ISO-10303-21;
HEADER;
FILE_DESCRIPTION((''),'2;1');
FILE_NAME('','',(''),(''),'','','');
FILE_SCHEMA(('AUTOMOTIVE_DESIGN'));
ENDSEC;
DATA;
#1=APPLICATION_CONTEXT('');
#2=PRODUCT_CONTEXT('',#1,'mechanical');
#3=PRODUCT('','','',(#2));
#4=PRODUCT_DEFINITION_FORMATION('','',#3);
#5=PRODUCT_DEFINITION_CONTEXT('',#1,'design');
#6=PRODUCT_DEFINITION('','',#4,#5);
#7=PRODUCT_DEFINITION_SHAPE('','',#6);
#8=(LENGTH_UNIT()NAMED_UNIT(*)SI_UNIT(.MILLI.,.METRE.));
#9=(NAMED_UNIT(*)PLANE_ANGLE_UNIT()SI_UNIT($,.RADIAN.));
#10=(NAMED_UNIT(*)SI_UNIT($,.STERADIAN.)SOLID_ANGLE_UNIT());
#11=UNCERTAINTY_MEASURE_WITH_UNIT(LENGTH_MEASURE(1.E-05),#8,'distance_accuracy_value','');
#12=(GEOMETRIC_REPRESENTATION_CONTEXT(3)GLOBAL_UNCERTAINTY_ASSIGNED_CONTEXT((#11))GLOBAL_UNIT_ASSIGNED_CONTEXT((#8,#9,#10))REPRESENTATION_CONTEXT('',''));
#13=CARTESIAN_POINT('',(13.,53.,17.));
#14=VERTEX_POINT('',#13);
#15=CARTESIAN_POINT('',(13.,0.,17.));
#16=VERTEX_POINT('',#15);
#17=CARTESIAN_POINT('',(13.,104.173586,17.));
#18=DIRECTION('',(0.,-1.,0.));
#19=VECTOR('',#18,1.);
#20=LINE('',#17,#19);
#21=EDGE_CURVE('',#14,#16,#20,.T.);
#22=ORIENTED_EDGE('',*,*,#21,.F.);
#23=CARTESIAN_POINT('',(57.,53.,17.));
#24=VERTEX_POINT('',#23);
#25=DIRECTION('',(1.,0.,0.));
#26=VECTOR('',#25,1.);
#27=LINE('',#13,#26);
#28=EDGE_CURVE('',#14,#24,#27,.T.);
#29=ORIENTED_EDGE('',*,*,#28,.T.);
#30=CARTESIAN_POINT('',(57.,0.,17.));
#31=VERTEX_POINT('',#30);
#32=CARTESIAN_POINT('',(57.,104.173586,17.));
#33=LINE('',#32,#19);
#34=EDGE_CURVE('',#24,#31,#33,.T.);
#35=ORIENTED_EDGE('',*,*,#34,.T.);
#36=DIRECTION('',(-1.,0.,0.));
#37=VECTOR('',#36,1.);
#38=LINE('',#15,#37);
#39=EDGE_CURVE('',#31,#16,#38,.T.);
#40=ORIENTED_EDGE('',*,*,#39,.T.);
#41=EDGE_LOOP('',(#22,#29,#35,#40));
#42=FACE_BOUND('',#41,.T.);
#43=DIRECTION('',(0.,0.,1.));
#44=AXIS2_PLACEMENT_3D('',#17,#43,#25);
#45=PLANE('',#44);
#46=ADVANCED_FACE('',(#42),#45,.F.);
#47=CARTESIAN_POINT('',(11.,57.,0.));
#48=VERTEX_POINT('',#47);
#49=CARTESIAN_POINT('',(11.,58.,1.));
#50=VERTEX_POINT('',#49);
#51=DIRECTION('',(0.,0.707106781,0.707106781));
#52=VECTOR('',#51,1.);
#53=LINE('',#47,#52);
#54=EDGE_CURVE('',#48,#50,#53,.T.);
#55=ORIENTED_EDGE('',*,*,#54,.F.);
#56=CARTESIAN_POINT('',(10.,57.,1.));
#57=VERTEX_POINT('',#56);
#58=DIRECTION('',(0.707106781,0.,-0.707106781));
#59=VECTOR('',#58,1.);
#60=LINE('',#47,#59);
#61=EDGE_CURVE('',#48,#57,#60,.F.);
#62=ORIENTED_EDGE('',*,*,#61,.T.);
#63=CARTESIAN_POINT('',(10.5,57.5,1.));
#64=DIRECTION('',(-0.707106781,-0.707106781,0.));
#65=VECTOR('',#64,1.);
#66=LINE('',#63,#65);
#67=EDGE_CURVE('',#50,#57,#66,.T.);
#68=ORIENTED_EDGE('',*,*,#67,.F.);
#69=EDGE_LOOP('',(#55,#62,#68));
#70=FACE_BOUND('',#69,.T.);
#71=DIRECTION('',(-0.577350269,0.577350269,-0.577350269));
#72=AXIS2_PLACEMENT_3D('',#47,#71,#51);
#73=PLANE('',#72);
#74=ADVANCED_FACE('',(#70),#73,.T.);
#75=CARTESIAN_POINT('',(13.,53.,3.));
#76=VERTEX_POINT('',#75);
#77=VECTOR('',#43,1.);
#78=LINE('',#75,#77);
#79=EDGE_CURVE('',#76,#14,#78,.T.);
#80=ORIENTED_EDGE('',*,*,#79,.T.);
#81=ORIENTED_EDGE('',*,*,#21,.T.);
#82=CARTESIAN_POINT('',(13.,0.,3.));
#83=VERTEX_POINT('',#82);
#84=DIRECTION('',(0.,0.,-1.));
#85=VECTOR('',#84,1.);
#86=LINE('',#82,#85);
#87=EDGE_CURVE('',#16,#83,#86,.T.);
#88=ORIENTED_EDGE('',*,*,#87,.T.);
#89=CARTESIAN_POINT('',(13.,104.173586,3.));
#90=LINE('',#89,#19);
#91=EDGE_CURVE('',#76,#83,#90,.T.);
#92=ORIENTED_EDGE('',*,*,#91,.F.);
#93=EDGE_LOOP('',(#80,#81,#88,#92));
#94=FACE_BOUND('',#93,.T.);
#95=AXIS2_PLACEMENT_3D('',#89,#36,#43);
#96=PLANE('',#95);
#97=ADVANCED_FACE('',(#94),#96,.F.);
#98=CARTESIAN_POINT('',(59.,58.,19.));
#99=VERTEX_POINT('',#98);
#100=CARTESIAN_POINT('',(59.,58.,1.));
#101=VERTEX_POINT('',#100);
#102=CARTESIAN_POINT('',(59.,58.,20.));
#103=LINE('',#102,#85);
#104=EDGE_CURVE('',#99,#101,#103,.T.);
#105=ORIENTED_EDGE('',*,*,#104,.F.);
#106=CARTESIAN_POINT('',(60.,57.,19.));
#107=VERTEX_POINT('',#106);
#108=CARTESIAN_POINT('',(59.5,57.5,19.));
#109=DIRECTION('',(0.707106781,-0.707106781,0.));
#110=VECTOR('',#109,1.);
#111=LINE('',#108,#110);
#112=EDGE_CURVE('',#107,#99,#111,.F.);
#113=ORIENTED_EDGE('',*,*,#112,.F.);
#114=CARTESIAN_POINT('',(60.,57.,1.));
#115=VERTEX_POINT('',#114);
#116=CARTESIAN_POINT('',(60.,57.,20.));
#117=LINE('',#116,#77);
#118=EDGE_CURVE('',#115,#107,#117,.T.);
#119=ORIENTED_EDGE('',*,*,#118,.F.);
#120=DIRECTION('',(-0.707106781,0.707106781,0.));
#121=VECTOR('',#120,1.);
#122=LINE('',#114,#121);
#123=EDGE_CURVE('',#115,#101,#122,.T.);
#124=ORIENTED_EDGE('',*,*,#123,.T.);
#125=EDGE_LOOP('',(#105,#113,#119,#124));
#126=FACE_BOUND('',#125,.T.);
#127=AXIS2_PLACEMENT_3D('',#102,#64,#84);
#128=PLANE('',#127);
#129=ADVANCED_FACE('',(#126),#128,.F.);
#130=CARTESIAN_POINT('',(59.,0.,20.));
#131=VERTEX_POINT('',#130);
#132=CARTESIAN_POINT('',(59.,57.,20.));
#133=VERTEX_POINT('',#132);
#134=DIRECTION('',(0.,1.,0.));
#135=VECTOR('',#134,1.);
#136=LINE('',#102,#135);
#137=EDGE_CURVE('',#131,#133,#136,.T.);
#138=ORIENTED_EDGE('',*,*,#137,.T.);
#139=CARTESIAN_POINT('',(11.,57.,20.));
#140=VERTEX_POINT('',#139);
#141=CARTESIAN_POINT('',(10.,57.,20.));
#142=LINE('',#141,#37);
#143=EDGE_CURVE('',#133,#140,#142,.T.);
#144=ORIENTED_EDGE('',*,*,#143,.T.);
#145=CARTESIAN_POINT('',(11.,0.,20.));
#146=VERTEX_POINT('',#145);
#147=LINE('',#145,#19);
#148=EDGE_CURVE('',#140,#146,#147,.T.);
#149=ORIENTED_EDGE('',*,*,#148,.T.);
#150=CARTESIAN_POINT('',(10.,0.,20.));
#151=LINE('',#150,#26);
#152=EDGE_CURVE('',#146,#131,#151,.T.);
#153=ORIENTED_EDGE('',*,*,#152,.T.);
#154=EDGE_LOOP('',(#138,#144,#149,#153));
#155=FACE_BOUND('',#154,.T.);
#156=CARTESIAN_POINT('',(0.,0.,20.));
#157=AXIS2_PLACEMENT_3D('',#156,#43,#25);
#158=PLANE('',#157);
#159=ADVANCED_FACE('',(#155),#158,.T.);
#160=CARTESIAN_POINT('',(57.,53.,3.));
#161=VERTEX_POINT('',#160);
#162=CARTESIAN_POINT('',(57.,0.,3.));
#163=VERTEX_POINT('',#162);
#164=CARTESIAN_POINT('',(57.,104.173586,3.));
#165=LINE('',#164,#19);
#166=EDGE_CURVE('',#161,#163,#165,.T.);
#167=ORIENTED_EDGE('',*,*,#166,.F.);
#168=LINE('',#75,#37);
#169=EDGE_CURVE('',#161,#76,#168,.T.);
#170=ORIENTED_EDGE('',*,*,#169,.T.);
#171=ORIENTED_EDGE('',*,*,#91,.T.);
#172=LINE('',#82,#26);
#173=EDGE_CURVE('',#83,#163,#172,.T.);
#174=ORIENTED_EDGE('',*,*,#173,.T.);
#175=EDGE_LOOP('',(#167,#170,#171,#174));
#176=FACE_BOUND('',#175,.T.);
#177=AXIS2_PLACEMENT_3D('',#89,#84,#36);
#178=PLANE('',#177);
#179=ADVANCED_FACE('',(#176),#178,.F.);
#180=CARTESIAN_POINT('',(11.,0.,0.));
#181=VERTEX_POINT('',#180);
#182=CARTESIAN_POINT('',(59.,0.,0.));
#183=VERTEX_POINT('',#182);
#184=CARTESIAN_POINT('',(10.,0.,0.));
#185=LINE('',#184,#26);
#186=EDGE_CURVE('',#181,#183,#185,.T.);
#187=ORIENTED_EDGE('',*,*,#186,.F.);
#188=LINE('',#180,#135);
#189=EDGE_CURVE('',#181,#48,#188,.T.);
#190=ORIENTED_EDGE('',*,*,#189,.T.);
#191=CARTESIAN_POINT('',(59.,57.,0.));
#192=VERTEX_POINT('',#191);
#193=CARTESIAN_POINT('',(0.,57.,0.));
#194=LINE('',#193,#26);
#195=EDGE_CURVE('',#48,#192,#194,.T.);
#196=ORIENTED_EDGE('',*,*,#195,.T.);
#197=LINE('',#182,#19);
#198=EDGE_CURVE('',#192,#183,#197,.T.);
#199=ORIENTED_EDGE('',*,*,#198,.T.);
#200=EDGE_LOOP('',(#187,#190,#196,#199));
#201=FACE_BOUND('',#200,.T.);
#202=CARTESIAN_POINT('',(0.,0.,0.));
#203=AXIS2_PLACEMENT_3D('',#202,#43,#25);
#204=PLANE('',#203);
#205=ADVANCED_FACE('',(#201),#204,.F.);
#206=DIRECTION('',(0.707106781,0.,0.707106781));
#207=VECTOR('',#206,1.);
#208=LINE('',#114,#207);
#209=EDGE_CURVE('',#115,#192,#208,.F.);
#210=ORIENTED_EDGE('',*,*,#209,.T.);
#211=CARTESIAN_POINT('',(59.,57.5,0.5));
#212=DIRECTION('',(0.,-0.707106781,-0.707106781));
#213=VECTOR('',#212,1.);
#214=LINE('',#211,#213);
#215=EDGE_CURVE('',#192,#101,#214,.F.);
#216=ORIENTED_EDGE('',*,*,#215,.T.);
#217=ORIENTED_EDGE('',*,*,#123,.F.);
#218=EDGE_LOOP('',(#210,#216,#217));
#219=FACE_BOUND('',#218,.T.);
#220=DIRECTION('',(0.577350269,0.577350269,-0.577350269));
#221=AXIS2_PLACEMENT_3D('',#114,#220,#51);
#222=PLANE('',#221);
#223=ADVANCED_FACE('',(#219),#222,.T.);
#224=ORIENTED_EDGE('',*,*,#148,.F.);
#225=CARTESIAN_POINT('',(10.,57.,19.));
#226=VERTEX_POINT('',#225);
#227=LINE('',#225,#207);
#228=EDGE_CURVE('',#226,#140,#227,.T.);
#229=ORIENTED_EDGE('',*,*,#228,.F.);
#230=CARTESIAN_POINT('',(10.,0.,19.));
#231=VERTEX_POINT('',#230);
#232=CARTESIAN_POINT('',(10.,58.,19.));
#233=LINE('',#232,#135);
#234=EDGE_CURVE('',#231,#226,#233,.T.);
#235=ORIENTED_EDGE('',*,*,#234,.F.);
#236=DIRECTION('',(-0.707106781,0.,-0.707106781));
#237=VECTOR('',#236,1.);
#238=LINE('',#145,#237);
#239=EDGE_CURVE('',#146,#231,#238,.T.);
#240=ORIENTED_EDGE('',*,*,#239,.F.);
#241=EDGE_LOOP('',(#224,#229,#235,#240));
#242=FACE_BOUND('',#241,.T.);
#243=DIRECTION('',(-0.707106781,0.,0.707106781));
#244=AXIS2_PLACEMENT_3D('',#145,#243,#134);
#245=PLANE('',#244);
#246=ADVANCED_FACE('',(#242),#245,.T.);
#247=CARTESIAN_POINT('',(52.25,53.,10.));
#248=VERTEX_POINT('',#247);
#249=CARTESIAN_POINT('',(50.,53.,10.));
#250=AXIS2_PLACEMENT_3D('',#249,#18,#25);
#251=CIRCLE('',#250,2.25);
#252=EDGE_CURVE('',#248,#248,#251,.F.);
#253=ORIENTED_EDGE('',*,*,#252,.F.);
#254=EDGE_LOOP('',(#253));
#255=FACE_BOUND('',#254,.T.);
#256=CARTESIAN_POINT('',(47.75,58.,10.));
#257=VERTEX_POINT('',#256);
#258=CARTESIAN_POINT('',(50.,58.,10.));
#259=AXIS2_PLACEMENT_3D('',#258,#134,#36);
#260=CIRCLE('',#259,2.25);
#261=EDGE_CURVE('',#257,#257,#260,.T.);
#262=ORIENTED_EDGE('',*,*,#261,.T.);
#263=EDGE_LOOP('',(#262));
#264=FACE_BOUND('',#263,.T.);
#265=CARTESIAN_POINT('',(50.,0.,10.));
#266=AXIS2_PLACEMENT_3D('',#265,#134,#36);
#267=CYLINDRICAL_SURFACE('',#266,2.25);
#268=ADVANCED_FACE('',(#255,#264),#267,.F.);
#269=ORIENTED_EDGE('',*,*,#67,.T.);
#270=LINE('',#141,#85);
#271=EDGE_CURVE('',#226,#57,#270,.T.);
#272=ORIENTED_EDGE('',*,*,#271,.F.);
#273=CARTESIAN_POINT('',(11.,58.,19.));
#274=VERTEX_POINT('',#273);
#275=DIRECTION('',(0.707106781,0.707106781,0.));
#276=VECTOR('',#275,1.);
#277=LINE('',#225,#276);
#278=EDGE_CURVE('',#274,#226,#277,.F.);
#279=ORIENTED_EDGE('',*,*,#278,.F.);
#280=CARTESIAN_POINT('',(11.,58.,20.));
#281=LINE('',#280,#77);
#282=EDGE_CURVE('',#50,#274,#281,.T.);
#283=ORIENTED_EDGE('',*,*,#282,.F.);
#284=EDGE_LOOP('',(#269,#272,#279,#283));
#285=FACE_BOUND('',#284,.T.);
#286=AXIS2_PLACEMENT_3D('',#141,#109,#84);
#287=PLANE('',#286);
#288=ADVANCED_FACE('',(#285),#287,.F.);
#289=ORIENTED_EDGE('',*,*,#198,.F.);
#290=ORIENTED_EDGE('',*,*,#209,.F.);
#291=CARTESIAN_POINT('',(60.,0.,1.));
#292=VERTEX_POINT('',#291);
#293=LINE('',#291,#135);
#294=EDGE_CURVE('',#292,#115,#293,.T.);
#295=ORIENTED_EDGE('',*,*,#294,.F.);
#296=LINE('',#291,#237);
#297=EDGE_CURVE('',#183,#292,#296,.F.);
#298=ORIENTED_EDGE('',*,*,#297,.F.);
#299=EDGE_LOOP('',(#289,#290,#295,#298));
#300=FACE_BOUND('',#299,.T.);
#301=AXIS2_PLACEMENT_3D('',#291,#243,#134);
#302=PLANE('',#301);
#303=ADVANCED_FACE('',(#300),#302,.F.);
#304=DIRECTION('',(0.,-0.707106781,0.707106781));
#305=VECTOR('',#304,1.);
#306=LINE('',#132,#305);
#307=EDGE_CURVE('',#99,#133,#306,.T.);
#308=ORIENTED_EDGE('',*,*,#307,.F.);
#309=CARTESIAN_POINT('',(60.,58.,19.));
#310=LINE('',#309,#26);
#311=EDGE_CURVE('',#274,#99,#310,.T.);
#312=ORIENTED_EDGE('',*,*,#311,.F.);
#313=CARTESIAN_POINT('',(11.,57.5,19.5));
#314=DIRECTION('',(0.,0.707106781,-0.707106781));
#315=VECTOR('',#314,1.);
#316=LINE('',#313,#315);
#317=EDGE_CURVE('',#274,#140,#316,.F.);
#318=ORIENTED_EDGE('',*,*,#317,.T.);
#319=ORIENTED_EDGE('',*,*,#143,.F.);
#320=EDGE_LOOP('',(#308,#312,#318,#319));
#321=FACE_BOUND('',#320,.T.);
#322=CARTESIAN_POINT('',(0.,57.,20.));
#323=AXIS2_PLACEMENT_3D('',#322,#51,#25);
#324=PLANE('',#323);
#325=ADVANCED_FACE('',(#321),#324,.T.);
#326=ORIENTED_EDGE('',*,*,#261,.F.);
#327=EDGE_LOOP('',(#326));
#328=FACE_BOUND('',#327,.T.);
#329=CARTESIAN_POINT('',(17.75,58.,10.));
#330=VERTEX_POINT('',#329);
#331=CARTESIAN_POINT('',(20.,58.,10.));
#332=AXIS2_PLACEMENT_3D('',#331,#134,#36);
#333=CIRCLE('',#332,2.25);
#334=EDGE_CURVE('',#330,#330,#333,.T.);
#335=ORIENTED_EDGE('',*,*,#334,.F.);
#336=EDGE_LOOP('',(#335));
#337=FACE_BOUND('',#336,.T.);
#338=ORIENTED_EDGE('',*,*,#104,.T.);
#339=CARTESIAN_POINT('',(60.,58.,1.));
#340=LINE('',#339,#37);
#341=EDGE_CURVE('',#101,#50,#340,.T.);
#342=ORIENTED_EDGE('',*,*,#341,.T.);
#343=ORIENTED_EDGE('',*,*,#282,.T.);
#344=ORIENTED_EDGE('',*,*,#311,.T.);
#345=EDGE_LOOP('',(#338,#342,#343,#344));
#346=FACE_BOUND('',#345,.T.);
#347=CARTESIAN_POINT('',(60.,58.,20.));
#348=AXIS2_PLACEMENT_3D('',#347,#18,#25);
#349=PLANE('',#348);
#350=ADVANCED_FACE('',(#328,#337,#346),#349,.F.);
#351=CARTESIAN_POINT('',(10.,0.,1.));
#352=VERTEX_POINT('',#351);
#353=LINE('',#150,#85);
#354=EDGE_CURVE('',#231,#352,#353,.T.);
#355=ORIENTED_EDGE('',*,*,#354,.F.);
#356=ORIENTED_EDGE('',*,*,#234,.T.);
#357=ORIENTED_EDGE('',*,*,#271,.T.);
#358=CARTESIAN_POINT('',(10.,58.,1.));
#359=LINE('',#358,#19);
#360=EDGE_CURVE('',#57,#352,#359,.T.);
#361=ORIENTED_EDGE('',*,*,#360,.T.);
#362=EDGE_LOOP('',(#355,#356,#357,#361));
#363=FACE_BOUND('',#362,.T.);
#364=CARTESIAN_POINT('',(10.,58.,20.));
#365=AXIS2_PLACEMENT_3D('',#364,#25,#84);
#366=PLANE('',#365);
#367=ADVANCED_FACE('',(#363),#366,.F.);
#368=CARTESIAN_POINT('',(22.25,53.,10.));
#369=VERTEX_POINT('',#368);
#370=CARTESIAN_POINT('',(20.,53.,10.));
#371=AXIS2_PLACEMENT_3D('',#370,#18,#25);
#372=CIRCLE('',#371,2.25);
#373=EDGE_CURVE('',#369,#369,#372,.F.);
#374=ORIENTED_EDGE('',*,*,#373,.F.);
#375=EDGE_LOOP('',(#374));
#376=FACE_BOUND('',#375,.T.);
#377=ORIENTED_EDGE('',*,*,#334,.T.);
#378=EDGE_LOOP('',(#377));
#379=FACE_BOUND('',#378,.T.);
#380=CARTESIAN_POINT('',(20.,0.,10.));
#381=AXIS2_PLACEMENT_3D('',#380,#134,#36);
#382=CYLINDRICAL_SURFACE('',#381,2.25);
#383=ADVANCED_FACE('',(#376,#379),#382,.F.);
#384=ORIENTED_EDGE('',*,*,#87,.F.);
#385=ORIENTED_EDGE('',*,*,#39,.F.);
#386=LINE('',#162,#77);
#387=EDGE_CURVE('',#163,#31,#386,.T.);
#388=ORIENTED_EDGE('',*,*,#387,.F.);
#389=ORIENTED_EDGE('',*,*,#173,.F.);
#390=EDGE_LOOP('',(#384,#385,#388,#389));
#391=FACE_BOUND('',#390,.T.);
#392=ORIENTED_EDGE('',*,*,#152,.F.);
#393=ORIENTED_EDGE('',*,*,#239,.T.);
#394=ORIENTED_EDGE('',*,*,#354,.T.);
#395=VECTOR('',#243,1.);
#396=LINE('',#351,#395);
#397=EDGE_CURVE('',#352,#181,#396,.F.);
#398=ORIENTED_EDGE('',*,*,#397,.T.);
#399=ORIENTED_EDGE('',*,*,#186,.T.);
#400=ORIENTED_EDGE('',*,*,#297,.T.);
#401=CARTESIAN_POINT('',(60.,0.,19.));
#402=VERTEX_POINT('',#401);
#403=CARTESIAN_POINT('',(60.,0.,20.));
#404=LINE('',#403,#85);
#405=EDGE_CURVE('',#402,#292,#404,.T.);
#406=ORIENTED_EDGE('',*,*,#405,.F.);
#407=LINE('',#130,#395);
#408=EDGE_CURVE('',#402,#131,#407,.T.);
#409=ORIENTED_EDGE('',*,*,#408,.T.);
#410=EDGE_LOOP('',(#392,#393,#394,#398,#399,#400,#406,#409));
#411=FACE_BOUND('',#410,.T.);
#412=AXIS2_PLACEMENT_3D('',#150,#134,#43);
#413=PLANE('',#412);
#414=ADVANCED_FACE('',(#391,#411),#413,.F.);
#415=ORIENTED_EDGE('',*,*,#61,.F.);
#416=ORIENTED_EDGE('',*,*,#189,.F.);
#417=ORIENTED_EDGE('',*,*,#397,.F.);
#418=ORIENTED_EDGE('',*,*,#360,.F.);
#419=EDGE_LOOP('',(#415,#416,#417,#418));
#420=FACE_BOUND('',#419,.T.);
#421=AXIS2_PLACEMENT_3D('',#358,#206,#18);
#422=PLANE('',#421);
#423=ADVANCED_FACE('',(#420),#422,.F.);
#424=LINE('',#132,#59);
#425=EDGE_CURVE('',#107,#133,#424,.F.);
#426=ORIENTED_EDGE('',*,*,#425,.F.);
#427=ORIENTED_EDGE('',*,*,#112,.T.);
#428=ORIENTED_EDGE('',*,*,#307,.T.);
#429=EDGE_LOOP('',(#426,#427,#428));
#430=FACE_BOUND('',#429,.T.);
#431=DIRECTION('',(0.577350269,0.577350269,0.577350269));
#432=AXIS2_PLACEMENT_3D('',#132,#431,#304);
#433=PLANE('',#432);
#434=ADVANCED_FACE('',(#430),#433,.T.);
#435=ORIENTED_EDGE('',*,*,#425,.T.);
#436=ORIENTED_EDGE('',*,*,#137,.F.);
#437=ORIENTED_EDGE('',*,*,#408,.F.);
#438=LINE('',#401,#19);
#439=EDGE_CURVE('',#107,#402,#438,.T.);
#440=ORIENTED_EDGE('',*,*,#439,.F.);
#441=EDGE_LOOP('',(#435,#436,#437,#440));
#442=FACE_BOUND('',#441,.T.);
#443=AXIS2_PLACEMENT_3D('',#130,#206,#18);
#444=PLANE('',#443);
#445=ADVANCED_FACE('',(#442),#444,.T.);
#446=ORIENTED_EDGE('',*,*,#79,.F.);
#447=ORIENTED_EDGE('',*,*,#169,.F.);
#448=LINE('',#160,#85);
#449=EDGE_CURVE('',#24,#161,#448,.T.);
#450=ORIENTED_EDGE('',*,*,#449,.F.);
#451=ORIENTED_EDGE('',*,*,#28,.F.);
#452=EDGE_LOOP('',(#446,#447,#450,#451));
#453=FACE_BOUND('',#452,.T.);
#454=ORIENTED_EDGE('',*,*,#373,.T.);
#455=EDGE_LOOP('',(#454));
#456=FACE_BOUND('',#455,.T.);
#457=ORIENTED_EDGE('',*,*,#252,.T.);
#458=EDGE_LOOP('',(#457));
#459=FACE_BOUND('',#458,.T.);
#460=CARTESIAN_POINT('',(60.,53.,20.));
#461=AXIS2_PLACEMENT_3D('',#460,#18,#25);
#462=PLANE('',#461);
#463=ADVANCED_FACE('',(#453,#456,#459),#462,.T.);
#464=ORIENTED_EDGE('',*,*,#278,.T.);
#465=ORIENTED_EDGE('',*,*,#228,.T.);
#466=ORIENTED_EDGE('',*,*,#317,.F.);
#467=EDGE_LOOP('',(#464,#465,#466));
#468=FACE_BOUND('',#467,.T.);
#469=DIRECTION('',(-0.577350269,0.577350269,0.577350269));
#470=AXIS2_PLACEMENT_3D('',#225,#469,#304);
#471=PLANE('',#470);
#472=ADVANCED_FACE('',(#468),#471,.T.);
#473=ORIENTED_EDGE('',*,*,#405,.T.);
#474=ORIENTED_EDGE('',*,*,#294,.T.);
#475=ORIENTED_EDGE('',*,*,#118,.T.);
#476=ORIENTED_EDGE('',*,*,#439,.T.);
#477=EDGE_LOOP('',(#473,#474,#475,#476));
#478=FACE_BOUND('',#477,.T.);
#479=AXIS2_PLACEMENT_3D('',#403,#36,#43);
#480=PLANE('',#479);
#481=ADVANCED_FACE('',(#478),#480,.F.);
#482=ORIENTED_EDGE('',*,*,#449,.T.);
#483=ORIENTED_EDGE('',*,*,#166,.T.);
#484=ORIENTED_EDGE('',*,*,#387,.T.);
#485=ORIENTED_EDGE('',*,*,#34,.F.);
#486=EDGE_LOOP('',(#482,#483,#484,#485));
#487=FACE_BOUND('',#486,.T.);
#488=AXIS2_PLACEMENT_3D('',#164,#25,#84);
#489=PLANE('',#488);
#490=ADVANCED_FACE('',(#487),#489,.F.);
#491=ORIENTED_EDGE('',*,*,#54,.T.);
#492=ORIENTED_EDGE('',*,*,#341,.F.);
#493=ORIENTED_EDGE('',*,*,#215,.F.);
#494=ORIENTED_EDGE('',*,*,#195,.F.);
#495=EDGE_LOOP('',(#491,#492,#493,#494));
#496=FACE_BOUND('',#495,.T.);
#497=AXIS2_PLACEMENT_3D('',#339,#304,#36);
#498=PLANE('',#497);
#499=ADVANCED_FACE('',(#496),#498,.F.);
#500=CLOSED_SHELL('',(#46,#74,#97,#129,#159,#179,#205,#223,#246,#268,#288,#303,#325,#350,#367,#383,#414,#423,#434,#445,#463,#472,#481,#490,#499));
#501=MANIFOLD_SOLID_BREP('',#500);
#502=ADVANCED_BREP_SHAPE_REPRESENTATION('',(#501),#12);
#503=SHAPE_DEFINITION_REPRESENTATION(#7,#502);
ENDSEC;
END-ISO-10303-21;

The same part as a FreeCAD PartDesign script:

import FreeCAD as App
import Part
import Sketcher
Q = App.Units.Quantity


def edges_at(feature, points):
    """Names of the edges that pass closest to the given points."""
    edges = feature.Shape.Edges
    near = lambda p: min(range(len(edges)), key=lambda i: edges[i].distToShape(Part.Vertex(*p))[0])
    return sorted({f"Edge{near(p) + 1}" for p in points})

doc = App.newDocument("Part")
body = doc.addObject("PartDesign::Body", "Body")

# Sketch on XY plane
sketch1 = body.newObject("Sketcher::SketchObject", "Sketch")
sketch1.AttachmentSupport = (doc.getObject("XY_Plane"), [""])
sketch1.MapMode = "FlatFace"
sketch1.addGeometry([
    Part.LineSegment(App.Vector(10, 58, 0), App.Vector(10, 0, 0)),
    Part.LineSegment(App.Vector(10, 0, 0), App.Vector(60, 0, 0)),
    Part.LineSegment(App.Vector(60, 0, 0), App.Vector(60, 58, 0)),
    Part.LineSegment(App.Vector(60, 58, 0), App.Vector(10, 58, 0)),
], False)
sketch1.addConstraint([
    Sketcher.Constraint("Coincident", 0, 2, 1, 1),
    Sketcher.Constraint("Coincident", 1, 2, 2, 1),
    Sketcher.Constraint("Coincident", 2, 2, 3, 1),
    Sketcher.Constraint("Coincident", 3, 2, 0, 1),
    Sketcher.Constraint("Vertical", 0),
    Sketcher.Constraint("Horizontal", 1),
    Sketcher.Constraint("Vertical", 2),
    Sketcher.Constraint("Horizontal", 3),
    Sketcher.Constraint("PointOnObject", 0, 2, -1),
    Sketcher.Constraint("DistanceX", 1, 1, 1, 2, Q("50 mm")),
    Sketcher.Constraint("DistanceY", 0, 2, 0, 1, Q("58 mm")),
    Sketcher.Constraint("DistanceX", -1, 1, 0, 2, Q("10 mm")),
])
pad1 = body.newObject("PartDesign::Pad", "Pad")
pad1.Profile = sketch1
pad1.Length = 20

# Sketch on XZ plane
sketch2 = body.newObject("Sketcher::SketchObject", "Sketch001")
sketch2.AttachmentSupport = (doc.getObject("XZ_Plane"), [""])
sketch2.MapMode = "FlatFace"
sketch2.AttachmentOffset = App.Placement(App.Vector(0, 0, -58), App.Rotation())
sketch2.addGeometry([
    Part.Circle(App.Vector(20, 10, 0), App.Vector(0, 0, 1), 2.2),
    Part.Circle(App.Vector(50, 10, 0), App.Vector(0, 0, 1), 2.2),
], False)
sketch2.addConstraint([
    Sketcher.Constraint("Equal", 0, 1),
    Sketcher.Constraint("Horizontal", 0, 3, 1, 3),
    Sketcher.Constraint("Diameter", 0, Q("4.5 mm")),
    Sketcher.Constraint("DistanceX", -1, 1, 0, 3, Q("20 mm")),
    Sketcher.Constraint("DistanceY", -1, 1, 0, 3, Q("10 mm")),
    Sketcher.Constraint("DistanceX", -1, 1, 1, 3, Q("50 mm")),
])
pocket1 = body.newObject("PartDesign::Pocket", "Pocket")
pocket1.Profile = sketch2
pocket1.Type = "ThroughAll"
pocket1.Reversed = True

# Sketch on XZ plane
sketch3 = body.newObject("Sketcher::SketchObject", "Sketch002")
sketch3.AttachmentSupport = (doc.getObject("XZ_Plane"), [""])
sketch3.MapMode = "FlatFace"
sketch3.addGeometry([
    Part.LineSegment(App.Vector(13, 17, 0), App.Vector(13, 3, 0)),
    Part.LineSegment(App.Vector(13, 3, 0), App.Vector(57, 3, 0)),
    Part.LineSegment(App.Vector(57, 3, 0), App.Vector(57, 17, 0)),
    Part.LineSegment(App.Vector(57, 17, 0), App.Vector(13, 17, 0)),
], False)
sketch3.addConstraint([
    Sketcher.Constraint("Coincident", 0, 2, 1, 1),
    Sketcher.Constraint("Coincident", 1, 2, 2, 1),
    Sketcher.Constraint("Coincident", 2, 2, 3, 1),
    Sketcher.Constraint("Coincident", 3, 2, 0, 1),
    Sketcher.Constraint("Vertical", 0),
    Sketcher.Constraint("Horizontal", 1),
    Sketcher.Constraint("Vertical", 2),
    Sketcher.Constraint("Horizontal", 3),
    Sketcher.Constraint("DistanceX", 1, 1, 1, 2, Q("44 mm")),
    Sketcher.Constraint("DistanceY", 0, 2, 0, 1, Q("14 mm")),
    Sketcher.Constraint("DistanceX", -1, 1, 0, 2, Q("13 mm")),
    Sketcher.Constraint("DistanceY", -1, 1, 0, 2, Q("3 mm")),
])
pocket2 = body.newObject("PartDesign::Pocket", "Pocket001")
pocket2.Profile = sketch3
pocket2.Length = 53
doc.recompute()

chamfer = body.newObject("PartDesign::Chamfer", "Chamfer")
chamfer.Base = (pocket2, edges_at(pocket2, [
    (60, 29, 20),
    (35, 58, 20),
    (60, 29, 0),
    (10, 29, 0),
    (35, 58, 0),
    (60, 58, 10),
    (10, 58, 10),
    (10, 29, 20),
]))
chamfer.Size = 1

doc.recompute()
